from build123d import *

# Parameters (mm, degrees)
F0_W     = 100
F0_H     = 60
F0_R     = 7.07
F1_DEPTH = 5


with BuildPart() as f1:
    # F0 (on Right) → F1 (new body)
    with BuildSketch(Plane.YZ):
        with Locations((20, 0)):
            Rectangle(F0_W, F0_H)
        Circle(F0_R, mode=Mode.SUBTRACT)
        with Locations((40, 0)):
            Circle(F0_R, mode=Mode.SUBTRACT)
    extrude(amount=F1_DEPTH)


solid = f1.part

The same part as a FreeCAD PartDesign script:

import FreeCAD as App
import Part
import Sketcher

V = App.Vector


def add_polygon(sketch, points):
    """Adds a closed chain of lines whose ends are joined by coincident constraints."""
    first, n = sketch.GeometryCount, len(points)
    for a, b in zip(points, points[1:] + points[:1]):
        sketch.addGeometry(Part.LineSegment(App.Vector(*a, 0), App.Vector(*b, 0)), False)
    for i in range(n):
        sketch.addConstraint(Sketcher.Constraint("Coincident", first + i, 2, first + (i + 1) % n, 1))

doc = App.newDocument("Part")
body = doc.addObject("PartDesign::Body", "Body")

sketch1 = body.newObject("Sketcher::SketchObject", "Sketch")
sketch1.AttachmentSupport = (doc.getObject("YZ_Plane"), [""])
sketch1.MapMode = "FlatFace"
add_polygon(sketch1, [(-30, 30), (-30, -30), (70, -30), (70, 30)])
sketch1.addGeometry(Part.Circle(V(0, 0, 0), V(0, 0, 1), 7), False)
sketch1.addGeometry(Part.Circle(V(40, 0, 0), V(0, 0, 1), 7), False)
sketch1.addConstraint(Sketcher.Constraint("Vertical", 0))
sketch1.addConstraint(Sketcher.Constraint("Horizontal", 1))
sketch1.addConstraint(Sketcher.Constraint("Vertical", 2))
sketch1.addConstraint(Sketcher.Constraint("Horizontal", 3))
sketch1.addConstraint(Sketcher.Constraint("Coincident", 4, 3, -1, 1))
sketch1.addConstraint(Sketcher.Constraint("Equal", 4, 5))
sketch1.addConstraint(Sketcher.Constraint("PointOnObject", 5, 3, -1))
sketch1.addConstraint(Sketcher.Constraint("Diameter", 4, 14.14))
sketch1.addConstraint(Sketcher.Constraint("DistanceX", 1, 1, 1, 2, 100.0))
sketch1.addConstraint(Sketcher.Constraint("DistanceY", 0, 2, 0, 1, 60.0))
sketch1.addConstraint(Sketcher.Constraint("DistanceX", -1, 1, 5, 3, 40.0))
sketch1.addConstraint(Sketcher.Constraint("DistanceX", 0, 2, -1, 1, 30.0))
sketch1.addConstraint(Sketcher.Constraint("DistanceY", 0, 2, -1, 1, 30.0))
pad1 = body.newObject("PartDesign::Pad", "Pad")
pad1.Profile = sketch1
pad1.Length = 5

doc.recompute()
